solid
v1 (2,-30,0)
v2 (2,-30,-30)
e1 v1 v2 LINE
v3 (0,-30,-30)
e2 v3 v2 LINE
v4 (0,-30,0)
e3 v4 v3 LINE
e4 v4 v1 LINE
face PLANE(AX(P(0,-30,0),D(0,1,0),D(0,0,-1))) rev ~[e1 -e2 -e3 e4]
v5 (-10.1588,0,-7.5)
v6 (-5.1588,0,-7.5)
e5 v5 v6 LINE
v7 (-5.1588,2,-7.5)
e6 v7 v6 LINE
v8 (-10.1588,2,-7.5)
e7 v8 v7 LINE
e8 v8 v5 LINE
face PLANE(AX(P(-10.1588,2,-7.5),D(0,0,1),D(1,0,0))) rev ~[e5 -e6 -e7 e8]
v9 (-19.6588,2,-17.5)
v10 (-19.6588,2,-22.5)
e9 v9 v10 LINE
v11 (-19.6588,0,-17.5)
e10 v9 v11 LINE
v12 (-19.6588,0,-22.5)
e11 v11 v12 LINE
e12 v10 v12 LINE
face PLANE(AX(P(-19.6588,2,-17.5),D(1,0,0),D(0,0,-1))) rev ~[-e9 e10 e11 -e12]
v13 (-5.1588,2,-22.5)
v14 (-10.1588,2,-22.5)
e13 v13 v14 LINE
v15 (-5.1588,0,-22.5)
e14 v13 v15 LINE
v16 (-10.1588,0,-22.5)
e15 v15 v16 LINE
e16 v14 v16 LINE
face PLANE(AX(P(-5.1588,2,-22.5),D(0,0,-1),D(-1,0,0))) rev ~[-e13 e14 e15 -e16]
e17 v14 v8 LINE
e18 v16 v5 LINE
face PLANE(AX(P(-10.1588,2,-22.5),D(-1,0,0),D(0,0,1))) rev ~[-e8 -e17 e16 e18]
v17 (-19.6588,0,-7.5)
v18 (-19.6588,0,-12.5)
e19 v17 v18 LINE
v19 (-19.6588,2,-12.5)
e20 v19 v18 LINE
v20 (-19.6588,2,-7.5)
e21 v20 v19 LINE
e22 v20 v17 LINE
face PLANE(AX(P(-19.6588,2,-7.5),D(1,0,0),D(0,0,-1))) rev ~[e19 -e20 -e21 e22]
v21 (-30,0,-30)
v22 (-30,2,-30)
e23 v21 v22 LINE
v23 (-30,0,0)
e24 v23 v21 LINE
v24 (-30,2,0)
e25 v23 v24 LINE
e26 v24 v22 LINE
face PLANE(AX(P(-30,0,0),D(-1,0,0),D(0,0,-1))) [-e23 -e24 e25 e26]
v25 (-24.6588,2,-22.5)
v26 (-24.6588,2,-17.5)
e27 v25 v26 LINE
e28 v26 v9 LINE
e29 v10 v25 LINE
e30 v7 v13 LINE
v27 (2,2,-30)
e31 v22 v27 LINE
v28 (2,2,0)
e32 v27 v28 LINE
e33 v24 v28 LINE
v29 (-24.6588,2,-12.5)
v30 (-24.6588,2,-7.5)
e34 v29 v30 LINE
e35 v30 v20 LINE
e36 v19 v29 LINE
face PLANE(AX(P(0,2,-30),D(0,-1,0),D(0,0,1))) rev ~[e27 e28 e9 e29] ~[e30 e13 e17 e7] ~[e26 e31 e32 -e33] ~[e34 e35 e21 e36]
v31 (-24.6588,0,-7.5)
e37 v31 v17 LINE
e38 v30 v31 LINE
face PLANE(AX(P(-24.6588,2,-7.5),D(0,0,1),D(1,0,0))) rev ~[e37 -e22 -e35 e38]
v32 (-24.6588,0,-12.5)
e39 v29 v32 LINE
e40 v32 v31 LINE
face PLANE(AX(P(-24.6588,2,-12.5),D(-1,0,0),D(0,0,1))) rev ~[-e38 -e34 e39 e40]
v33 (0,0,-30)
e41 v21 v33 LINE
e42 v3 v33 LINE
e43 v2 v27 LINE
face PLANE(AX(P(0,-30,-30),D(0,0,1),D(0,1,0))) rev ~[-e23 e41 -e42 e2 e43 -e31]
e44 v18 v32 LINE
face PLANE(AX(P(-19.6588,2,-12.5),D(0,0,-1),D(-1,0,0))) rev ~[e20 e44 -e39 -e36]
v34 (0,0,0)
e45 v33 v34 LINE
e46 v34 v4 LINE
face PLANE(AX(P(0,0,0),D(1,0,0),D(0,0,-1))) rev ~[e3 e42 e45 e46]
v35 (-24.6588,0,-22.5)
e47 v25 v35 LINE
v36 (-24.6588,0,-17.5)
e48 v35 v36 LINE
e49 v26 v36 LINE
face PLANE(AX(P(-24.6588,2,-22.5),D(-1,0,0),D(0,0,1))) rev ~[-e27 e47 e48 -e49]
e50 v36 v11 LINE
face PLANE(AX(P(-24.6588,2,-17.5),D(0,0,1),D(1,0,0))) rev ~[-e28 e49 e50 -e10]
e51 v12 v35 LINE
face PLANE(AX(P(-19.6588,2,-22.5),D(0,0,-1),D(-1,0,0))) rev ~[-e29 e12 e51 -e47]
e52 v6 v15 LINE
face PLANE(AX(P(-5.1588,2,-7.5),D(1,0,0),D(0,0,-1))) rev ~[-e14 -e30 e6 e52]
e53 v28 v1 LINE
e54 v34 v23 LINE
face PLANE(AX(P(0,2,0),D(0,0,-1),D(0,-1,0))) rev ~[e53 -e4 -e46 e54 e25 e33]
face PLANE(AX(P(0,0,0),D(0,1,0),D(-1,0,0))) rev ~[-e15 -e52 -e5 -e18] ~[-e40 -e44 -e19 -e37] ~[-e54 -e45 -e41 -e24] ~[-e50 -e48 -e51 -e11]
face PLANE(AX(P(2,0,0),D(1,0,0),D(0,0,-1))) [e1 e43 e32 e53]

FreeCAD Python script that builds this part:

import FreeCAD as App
import Part
import Sketcher

V = App.Vector
Q = App.Units.Quantity


def add_polygon(sketch, points):
    """Adds a closed chain of lines whose ends are joined by coincident constraints."""
    first, n = sketch.GeometryCount, len(points)
    for a, b in zip(points, points[1:] + points[:1]):
        sketch.addGeometry(Part.LineSegment(App.Vector(*a, 0), App.Vector(*b, 0)), False)
    for i in range(n):
        sketch.addConstraint(Sketcher.Constraint("Coincident", first + i, 2, first + (i + 1) % n, 1))

doc = App.newDocument("Part")
params = doc.addObject("Spreadsheet::Sheet", "Params")
for row, (alias, value) in enumerate([
    ("sketch1_width", "30 mm"),
    ("pad1_length", "2 mm"),
    ("sketch2_width", "5 mm"),
    ("pocket1_length", "2 mm"),
    ("sketch3_width", "32 mm"),
    ("sketch3_height", "30 mm"),
    ("pad2_length", "2 mm"),
], start=1):
    params.set(f"A{row}", alias)
    params.set(f"B{row}", "=" + value)
    params.setAlias(f"B{row}", alias)

body = doc.addObject("PartDesign::Body", "Body")

# Sketch on XZ plane
sketch1 = body.newObject("Sketcher::SketchObject", "Sketch")
sketch1.AttachmentSupport = (doc.getObject("XZ_Plane"), [""])
sketch1.MapMode = "FlatFace"
add_polygon(sketch1, [(-30, 0), (0, 0), (0, -30), (-30, -30)])  # lines 0-3
sketch1.addConstraint(Sketcher.Constraint("Horizontal", 0))
sketch1.addConstraint(Sketcher.Constraint("Vertical", 1))
sketch1.addConstraint(Sketcher.Constraint("Horizontal", 2))
sketch1.addConstraint(Sketcher.Constraint("Vertical", 3))
sketch1.addConstraint(Sketcher.Constraint("Coincident", 0, 2, -1, 1))
sketch1.addConstraint(Sketcher.Constraint("Equal", 2, 1))
sketch1.addConstraint(Sketcher.Constraint("DistanceX", 0, 1, 0, 2, Q("30 mm")))
sketch1.setExpression("Constraints[10]", "Params.sketch1_width")
pad1 = body.newObject("PartDesign::Pad", "Pad")
pad1.Profile = sketch1
pad1.setExpression("Length", "Params.pad1_length")
pad1.Reversed = True

# Sketch on XZ plane
sketch2 = body.newObject("Sketcher::SketchObject", "Sketch001")
sketch2.AttachmentSupport = (doc.getObject("XZ_Plane"), [""])
sketch2.MapMode = "FlatFace"
sketch2.AttachmentOffset = App.Placement(V(0, 0, -2), App.Rotation())
add_polygon(sketch2, [(-24.7, -12.5), (-24.7, -7.5), (-19.7, -7.5), (-19.7, -12.5)])  # lines 0-3
add_polygon(sketch2, [(-24.7, -22.5), (-24.7, -17.5), (-19.7, -17.5), (-19.7, -22.5)])  # lines 4-7
add_polygon(sketch2, [(-10.2, -22.5), (-10.2, -7.5), (-5.2, -7.5), (-5.2, -22.5)])  # lines 8-11
sketch2.addConstraint(Sketcher.Constraint("Vertical", 0))
sketch2.addConstraint(Sketcher.Constraint("Horizontal", 1))
sketch2.addConstraint(Sketcher.Constraint("Vertical", 2))
sketch2.addConstraint(Sketcher.Constraint("Horizontal", 3))
sketch2.addConstraint(Sketcher.Constraint("Vertical", 4))
sketch2.addConstraint(Sketcher.Constraint("Horizontal", 5))
sketch2.addConstraint(Sketcher.Constraint("Vertical", 6))
sketch2.addConstraint(Sketcher.Constraint("Horizontal", 7))
sketch2.addConstraint(Sketcher.Constraint("Vertical", 8))
sketch2.addConstraint(Sketcher.Constraint("Horizontal", 9))
sketch2.addConstraint(Sketcher.Constraint("Vertical", 10))
sketch2.addConstraint(Sketcher.Constraint("Horizontal", 11))
sketch2.addConstraint(Sketcher.Constraint("Horizontal", 1, 2, 8, 2))
sketch2.addConstraint(Sketcher.Constraint("Horizontal", 7, 2, 10, 2))
sketch2.addConstraint(Sketcher.Constraint("Vertical", 3, 2, 4, 2))
sketch2.addConstraint(Sketcher.Constraint("Vertical", 2, 2, 5, 2))
sketch2.addConstraint(Sketcher.Constraint("Equal", 7, 9))
sketch2.addConstraint(Sketcher.Constraint("Equal", 11, 0))
sketch2.addConstraint(Sketcher.Constraint("Equal", 2, 4))
sketch2.addConstraint(Sketcher.Constraint("DistanceX", 1, 1, 1, 2, Q("5 mm")))
sketch2.addConstraint(Sketcher.Constraint("DistanceY", 4, 2, 3, 2, Q("5 mm")))
sketch2.addConstraint(Sketcher.Constraint("DistanceY", 0, 2, -1, 1, Q("7.5 mm")))
sketch2.addConstraint(Sketcher.Constraint("DistanceX", 1, 2, 8, 2, Q("9.5 mm")))
sketch2.addConstraint(Sketcher.Constraint("DistanceX", 0, 2, -1, 1, Q("24.6588 mm")))
sketch2.setExpression("Constraints[31]", "Params.sketch2_width")
pocket1 = body.newObject("PartDesign::Pocket", "Pocket")
pocket1.Profile = sketch2
pocket1.setExpression("Length", "Params.pocket1_length")
pocket1.Reversed = True

# Sketch on YZ plane
sketch3 = body.newObject("Sketcher::SketchObject", "Sketch002")
sketch3.AttachmentSupport = (doc.getObject("YZ_Plane"), [""])
sketch3.MapMode = "FlatFace"
add_polygon(sketch3, [(-30, -30), (2, -30), (2, 0), (-30, 0)])  # lines 0-3
sketch3.addConstraint(Sketcher.Constraint("Horizontal", 0))
sketch3.addConstraint(Sketcher.Constraint("Vertical", 1))
sketch3.addConstraint(Sketcher.Constraint("Horizontal", 2))
sketch3.addConstraint(Sketcher.Constraint("Vertical", 3))
sketch3.addConstraint(Sketcher.Constraint("PointOnObject", 1, 2, -1))
sketch3.addConstraint(Sketcher.Constraint("DistanceX", 0, 1, 0, 2, Q("32 mm")))
sketch3.addConstraint(Sketcher.Constraint("DistanceY", 1, 1, 1, 2, Q("30 mm")))
sketch3.addConstraint(Sketcher.Constraint("DistanceX", -1, 1, 0, 2, Q("2 mm")))
sketch3.setExpression("Constraints[9]", "Params.sketch3_width")
sketch3.setExpression("Constraints[10]", "Params.sketch3_height")
pad2 = body.newObject("PartDesign::Pad", "Pad001")
pad2.Profile = sketch3
pad2.setExpression("Length", "Params.pad2_length")

doc.recompute()
